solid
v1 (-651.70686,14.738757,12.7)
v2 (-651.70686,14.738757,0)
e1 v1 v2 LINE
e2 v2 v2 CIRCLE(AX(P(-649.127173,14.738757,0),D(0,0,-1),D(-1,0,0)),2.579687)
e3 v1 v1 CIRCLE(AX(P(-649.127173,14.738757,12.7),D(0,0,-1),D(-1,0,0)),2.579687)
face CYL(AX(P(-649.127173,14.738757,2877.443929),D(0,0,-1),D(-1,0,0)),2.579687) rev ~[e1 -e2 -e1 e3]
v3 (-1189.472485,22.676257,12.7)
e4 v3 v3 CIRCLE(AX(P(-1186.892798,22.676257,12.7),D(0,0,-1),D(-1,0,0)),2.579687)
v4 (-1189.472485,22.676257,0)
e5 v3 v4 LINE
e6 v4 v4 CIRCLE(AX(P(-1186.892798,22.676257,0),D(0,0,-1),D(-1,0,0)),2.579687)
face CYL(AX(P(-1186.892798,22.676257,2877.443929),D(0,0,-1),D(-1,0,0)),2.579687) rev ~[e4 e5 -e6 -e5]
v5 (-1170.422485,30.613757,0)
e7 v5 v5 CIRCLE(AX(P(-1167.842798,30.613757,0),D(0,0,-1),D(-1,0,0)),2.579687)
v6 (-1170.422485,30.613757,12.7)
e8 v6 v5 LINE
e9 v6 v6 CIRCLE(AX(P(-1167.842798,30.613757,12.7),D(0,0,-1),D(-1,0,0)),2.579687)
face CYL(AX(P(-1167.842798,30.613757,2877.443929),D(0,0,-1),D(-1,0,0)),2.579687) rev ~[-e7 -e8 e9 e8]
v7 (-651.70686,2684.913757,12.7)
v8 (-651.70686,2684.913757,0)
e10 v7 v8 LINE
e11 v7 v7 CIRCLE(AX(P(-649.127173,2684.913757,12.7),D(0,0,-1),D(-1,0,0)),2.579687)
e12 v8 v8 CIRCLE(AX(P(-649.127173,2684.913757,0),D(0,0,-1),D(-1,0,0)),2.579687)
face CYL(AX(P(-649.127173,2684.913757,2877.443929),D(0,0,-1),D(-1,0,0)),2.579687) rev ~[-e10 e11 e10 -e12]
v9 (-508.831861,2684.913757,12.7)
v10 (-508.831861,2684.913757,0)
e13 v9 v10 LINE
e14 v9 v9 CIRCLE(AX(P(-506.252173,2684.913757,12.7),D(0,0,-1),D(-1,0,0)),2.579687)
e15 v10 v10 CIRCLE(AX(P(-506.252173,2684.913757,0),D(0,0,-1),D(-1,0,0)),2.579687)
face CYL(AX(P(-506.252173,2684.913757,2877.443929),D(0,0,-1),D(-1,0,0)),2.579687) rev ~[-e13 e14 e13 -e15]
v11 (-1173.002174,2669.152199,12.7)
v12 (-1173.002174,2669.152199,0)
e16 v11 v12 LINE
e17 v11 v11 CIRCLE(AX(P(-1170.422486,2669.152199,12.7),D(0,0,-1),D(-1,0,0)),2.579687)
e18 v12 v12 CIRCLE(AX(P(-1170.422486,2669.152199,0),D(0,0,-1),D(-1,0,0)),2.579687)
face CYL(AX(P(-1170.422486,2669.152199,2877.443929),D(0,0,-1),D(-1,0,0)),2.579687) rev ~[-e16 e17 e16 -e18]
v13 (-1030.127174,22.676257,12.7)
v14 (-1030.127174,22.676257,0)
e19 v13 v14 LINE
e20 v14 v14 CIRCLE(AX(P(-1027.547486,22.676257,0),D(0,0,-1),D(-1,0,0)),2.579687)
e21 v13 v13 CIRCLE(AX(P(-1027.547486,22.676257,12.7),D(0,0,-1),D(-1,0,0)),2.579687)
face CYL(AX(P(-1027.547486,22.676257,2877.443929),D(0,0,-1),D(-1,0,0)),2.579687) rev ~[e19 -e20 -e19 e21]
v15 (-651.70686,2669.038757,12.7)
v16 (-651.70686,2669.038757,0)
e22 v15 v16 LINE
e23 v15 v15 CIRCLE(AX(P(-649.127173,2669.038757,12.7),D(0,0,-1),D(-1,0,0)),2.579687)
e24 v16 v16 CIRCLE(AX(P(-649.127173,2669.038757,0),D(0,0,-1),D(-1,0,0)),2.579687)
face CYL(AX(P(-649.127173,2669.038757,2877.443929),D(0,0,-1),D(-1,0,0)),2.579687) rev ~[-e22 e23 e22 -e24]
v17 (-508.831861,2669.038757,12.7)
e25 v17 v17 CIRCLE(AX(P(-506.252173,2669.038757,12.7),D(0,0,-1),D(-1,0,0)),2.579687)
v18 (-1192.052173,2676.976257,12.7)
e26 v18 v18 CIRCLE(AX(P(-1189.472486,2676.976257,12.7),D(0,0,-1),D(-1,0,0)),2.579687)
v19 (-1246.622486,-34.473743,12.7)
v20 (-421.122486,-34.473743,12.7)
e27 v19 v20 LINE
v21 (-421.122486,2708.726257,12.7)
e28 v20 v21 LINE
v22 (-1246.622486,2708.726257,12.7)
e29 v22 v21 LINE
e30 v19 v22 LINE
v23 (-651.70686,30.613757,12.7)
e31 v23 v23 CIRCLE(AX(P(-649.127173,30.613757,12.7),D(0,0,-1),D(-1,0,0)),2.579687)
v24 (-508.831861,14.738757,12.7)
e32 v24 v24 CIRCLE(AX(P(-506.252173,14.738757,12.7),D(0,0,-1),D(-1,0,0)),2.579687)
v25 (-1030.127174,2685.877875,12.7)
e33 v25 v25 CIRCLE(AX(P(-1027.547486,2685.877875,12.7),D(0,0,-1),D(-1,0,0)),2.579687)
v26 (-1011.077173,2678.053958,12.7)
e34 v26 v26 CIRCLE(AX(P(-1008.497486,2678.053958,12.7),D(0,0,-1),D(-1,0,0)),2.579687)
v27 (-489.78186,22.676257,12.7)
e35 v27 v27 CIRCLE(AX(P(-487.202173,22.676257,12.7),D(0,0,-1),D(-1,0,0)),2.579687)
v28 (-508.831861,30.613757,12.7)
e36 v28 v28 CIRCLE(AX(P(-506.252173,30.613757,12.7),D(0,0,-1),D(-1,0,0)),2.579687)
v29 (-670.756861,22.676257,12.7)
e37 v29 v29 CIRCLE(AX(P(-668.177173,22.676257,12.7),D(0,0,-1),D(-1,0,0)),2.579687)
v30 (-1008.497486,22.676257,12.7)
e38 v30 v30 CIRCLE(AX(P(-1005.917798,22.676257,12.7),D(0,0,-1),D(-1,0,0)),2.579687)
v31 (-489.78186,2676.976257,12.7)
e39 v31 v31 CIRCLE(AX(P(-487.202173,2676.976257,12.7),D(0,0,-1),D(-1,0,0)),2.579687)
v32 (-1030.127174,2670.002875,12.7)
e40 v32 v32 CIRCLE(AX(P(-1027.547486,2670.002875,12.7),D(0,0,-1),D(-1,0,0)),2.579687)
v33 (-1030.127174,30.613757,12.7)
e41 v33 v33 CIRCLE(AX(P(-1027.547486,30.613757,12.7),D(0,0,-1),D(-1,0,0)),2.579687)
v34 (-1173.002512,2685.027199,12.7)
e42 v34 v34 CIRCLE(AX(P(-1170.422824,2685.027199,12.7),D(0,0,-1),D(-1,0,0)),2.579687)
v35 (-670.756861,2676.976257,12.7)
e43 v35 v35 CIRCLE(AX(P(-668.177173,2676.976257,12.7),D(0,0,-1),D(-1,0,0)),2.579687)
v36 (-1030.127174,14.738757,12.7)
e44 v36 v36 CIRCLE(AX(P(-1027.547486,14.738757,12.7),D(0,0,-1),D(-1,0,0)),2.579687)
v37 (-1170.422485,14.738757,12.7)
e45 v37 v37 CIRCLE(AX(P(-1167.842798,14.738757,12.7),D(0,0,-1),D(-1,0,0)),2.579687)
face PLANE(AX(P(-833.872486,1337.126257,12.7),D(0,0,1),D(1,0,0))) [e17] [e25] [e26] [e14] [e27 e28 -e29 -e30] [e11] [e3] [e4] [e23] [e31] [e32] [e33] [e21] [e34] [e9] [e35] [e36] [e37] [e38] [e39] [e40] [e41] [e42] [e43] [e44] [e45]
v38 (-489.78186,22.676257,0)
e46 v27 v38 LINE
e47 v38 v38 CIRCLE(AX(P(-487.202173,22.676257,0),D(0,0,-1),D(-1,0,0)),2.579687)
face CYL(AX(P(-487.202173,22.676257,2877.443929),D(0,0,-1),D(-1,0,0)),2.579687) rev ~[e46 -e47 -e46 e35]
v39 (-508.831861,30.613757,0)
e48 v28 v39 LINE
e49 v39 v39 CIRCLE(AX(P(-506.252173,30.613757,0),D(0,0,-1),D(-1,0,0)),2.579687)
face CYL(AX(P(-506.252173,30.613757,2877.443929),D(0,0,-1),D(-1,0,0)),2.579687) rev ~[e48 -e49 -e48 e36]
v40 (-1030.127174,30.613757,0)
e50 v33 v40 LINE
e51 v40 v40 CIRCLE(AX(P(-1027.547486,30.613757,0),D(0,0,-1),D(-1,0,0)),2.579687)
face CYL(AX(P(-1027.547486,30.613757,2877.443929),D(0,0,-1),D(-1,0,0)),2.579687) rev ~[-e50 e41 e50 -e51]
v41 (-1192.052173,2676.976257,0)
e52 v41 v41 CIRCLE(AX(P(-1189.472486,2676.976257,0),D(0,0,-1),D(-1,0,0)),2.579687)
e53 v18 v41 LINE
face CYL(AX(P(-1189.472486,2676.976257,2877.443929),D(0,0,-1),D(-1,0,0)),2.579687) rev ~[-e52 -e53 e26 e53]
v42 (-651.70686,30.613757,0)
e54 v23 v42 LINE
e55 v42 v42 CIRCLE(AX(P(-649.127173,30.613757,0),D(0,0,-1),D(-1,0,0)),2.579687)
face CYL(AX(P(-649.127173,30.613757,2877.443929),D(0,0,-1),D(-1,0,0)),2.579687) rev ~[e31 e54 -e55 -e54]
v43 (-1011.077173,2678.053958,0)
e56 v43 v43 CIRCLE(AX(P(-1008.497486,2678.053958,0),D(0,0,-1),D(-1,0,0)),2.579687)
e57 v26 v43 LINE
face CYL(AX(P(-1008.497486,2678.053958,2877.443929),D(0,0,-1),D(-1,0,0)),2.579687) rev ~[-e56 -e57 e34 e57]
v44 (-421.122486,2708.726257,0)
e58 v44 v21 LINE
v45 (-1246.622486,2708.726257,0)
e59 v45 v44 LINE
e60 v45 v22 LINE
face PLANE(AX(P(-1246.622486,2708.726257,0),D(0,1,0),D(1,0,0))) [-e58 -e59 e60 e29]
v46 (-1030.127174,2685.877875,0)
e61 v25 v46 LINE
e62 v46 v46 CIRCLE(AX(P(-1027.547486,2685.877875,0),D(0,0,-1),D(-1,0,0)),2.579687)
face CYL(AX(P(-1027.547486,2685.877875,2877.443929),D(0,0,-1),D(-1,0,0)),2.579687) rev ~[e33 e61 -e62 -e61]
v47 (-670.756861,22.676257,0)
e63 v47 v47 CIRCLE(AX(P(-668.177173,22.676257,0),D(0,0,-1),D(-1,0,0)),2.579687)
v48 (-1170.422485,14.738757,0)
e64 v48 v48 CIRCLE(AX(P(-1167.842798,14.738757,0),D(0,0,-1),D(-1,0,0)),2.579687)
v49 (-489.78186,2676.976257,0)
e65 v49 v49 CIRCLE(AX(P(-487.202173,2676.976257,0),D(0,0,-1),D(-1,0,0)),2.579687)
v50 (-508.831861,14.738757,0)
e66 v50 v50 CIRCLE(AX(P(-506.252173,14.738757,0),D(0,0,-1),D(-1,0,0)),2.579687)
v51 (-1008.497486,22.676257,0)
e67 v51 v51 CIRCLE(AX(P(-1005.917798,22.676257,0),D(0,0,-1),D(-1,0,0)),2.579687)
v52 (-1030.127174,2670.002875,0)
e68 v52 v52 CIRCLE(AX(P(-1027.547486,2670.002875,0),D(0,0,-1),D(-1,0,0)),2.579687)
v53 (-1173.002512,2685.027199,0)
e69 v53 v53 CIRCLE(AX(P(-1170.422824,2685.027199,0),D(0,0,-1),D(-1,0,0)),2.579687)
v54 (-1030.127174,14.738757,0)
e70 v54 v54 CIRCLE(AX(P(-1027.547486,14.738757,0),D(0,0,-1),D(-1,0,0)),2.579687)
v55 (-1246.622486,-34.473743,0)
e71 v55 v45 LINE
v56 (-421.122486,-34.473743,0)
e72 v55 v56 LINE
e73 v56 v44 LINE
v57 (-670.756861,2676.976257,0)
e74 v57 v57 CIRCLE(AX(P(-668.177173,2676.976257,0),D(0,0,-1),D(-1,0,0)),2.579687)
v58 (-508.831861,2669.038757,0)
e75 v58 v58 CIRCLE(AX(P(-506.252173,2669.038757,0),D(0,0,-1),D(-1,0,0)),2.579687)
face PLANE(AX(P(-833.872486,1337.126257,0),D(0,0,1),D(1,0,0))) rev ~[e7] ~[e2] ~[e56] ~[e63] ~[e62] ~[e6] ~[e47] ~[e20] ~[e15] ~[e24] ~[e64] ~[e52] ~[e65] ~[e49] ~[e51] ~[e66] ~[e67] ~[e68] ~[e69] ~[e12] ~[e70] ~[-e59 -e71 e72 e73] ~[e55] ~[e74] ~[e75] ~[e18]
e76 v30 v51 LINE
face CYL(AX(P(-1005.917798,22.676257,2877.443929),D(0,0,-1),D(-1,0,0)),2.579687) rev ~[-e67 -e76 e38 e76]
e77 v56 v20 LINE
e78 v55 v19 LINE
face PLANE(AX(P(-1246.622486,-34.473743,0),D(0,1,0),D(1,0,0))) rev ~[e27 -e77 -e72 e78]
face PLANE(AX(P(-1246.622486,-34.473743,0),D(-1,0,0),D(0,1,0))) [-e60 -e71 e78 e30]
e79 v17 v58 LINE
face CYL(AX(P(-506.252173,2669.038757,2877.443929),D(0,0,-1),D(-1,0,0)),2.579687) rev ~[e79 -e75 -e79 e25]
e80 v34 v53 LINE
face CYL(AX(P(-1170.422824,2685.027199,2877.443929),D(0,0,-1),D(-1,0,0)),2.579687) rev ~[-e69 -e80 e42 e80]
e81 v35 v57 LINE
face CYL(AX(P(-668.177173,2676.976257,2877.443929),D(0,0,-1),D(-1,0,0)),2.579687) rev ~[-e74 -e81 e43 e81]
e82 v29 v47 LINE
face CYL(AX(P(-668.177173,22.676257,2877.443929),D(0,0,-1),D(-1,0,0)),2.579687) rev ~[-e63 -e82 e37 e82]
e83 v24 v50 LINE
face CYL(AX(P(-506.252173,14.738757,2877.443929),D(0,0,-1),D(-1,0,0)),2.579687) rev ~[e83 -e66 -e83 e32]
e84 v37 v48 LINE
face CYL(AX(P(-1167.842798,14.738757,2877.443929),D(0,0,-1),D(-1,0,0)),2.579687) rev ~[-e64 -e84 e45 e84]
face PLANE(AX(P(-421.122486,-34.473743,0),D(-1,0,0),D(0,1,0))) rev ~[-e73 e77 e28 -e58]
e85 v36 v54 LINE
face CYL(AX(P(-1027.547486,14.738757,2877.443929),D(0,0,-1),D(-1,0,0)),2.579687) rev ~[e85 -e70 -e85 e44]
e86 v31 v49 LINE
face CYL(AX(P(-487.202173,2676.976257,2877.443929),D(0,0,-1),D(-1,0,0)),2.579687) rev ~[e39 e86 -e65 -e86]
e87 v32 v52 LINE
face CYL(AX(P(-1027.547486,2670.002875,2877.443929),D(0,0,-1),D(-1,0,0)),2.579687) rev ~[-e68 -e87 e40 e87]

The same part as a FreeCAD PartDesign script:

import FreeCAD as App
import Part
import Sketcher

V = App.Vector
Q = App.Units.Quantity

doc = App.newDocument("Part")
body = doc.addObject("PartDesign::Body", "Body")

# Sketch on XY plane
sketch1 = doc.addObject("Sketcher::SketchObject", "Sketch")
body.addObject(sketch1)
sketch1.AttachmentSupport = (doc.XY_Plane, [""])
sketch1.MapMode = "FlatFace"
sketch1.addGeometry([
    Part.LineSegment(V(-1247, 2709, 0), V(-1247, -34, 0)),
    Part.LineSegment(V(-1247, -34, 0), V(-421, -34, 0)),
    Part.LineSegment(V(-421, -34, 0), V(-421, 2709, 0)),
    Part.LineSegment(V(-421, 2709, 0), V(-1247, 2709, 0)),
], False)
sketch1.addConstraint([
    Sketcher.Constraint("Coincident", 0, 2, 1, 1),
    Sketcher.Constraint("Coincident", 1, 2, 2, 1),
    Sketcher.Constraint("Coincident", 2, 2, 3, 1),
    Sketcher.Constraint("Coincident", 3, 2, 0, 1),
    Sketcher.Constraint("Vertical", 0),
    Sketcher.Constraint("Horizontal", 1),
    Sketcher.Constraint("Vertical", 2),
    Sketcher.Constraint("Horizontal", 3),
    Sketcher.Constraint("DistanceY", 0, 2, 0, 1, Q("108 in")),
    Sketcher.Constraint("DistanceX", 1, 1, 1, 2, Q("32.5 in")),
    Sketcher.Constraint("DistanceX", 0, 2, -1, 1, Q("1246.622486 mm")),
    Sketcher.Constraint("DistanceY", 0, 2, -1, 1, Q("34.473743 mm")),
])
pad1 = doc.addObject("PartDesign::Pad", "Pad")
body.addObject(pad1)
pad1.Profile = sketch1
pad1.Length = Q("0.5 in")

# Sketch on XY plane
sketch2 = doc.addObject("Sketcher::SketchObject", "Sketch001")
body.addObject(sketch2)
sketch2.AttachmentSupport = (doc.XY_Plane, [""])
sketch2.MapMode = "FlatFace"
sketch2.AttachmentOffset = App.Placement(V(0, 0, 0.5 * 25.4), App.Rotation())
sketch2.addGeometry([
    Part.Circle(V(-487.2, 2677, 0), V(0, 0, 1), 2.6),  # 0
    Part.Circle(V(-668.2, 2677, 0), V(0, 0, 1), 2.6),  # 1
    Part.Circle(V(-649.1, 2684.9, 0), V(0, 0, 1), 2.6),  # 2
    Part.Circle(V(-1189.5, 2677, 0), V(0, 0, 1), 2.6),  # 3
    Part.Circle(V(-1027.5, 2670, 0), V(0, 0, 1), 2.6),  # 4
    Part.Circle(V(-1027.5, 2685.9, 0), V(0, 0, 1), 2.6),  # 5
    Part.Circle(V(-506.3, 2684.9, 0), V(0, 0, 1), 2.6),  # 6
    Part.Circle(V(-1008.5, 2678.1, 0), V(0, 0, 1), 2.6),  # 7
    Part.Circle(V(-1170.4, 2685, 0), V(0, 0, 1), 2.6),  # 8
    Part.Circle(V(-649.1, 2669, 0), V(0, 0, 1), 2.6),  # 9
    Part.Circle(V(-1170.4, 2669.2, 0), V(0, 0, 1), 2.6),  # 10
    Part.Circle(V(-506.3, 2669, 0), V(0, 0, 1), 2.6),  # 11
    Part.Circle(V(-1005.9, 22.7, 0), V(0, 0, 1), 2.6),  # 12
    Part.Circle(V(-1027.5, 14.7, 0), V(0, 0, 1), 2.6),  # 13
    Part.Circle(V(-1167.8, 14.7, 0), V(0, 0, 1), 2.6),  # 14
    Part.Circle(V(-668.2, 22.7, 0), V(0, 0, 1), 2.6),  # 15
    Part.Circle(V(-649.1, 14.7, 0), V(0, 0, 1), 2.6),  # 16
    Part.Circle(V(-1027.5, 30.6, 0), V(0, 0, 1), 2.6),  # 17
    Part.Circle(V(-649.1, 30.6, 0), V(0, 0, 1), 2.6),  # 18
    Part.Circle(V(-506.3, 14.7, 0), V(0, 0, 1), 2.6),  # 19
    Part.Circle(V(-1167.8, 30.6, 0), V(0, 0, 1), 2.6),  # 20
    Part.Circle(V(-1186.9, 22.7, 0), V(0, 0, 1), 2.6),  # 21
    Part.Circle(V(-506.3, 30.6, 0), V(0, 0, 1), 2.6),  # 22
    Part.Circle(V(-487.2, 22.7, 0), V(0, 0, 1), 2.6),  # 23
    Part.Circle(V(-1027.5, 22.7, 0), V(0, 0, 1), 2.6),  # 24
], False)
sketch2.addConstraint([
    Sketcher.Constraint("Equal", 0, 1),
    Sketcher.Constraint("Equal", 1, 2),
    Sketcher.Constraint("Equal", 2, 3),
    Sketcher.Constraint("Equal", 3, 4),
    Sketcher.Constraint("Equal", 4, 5),
    Sketcher.Constraint("Equal", 5, 6),
    Sketcher.Constraint("Equal", 6, 7),
    Sketcher.Constraint("Equal", 7, 8),
    Sketcher.Constraint("Equal", 8, 9),
    Sketcher.Constraint("Equal", 9, 10),
    Sketcher.Constraint("Equal", 10, 11),
    Sketcher.Constraint("Equal", 11, 12),
    Sketcher.Constraint("Equal", 12, 13),
    Sketcher.Constraint("Equal", 13, 14),
    Sketcher.Constraint("Equal", 14, 15),
    Sketcher.Constraint("Equal", 15, 16),
    Sketcher.Constraint("Equal", 16, 17),
    Sketcher.Constraint("Equal", 17, 18),
    Sketcher.Constraint("Equal", 18, 19),
    Sketcher.Constraint("Equal", 19, 20),
    Sketcher.Constraint("Equal", 20, 21),
    Sketcher.Constraint("Equal", 21, 22),
    Sketcher.Constraint("Equal", 22, 23),
    Sketcher.Constraint("Equal", 23, 24),
    Sketcher.Constraint("Horizontal", 0, 3, 1, 3),
    Sketcher.Constraint("Horizontal", 1, 3, 3, 3),
    Sketcher.Constraint("Horizontal", 2, 3, 6, 3),
    Sketcher.Constraint("Horizontal", 9, 3, 11, 3),
    Sketcher.Constraint("Horizontal", 13, 3, 14, 3),
    Sketcher.Constraint("Horizontal", 12, 3, 15, 3),
    Sketcher.Constraint("Horizontal", 14, 3, 16, 3),
    Sketcher.Constraint("Horizontal", 17, 3, 18, 3),
    Sketcher.Constraint("Horizontal", 16, 3, 19, 3),
    Sketcher.Constraint("Horizontal", 18, 3, 20, 3),
    Sketcher.Constraint("Horizontal", 15, 3, 21, 3),
    Sketcher.Constraint("Horizontal", 20, 3, 22, 3),
    Sketcher.Constraint("Horizontal", 21, 3, 23, 3),
    Sketcher.Constraint("Horizontal", 23, 3, 24, 3),
    Sketcher.Constraint("Vertical", 4, 3, 5, 3),
    Sketcher.Constraint("Vertical", 2, 3, 9, 3),
    Sketcher.Constraint("Vertical", 6, 3, 11, 3),
    Sketcher.Constraint("Vertical", 5, 3, 13, 3),
    Sketcher.Constraint("Vertical", 1, 3, 15, 3),
    Sketcher.Constraint("Vertical", 9, 3, 16, 3),
    Sketcher.Constraint("Vertical", 13, 3, 17, 3),
    Sketcher.Constraint("Vertical", 16, 3, 18, 3),
    Sketcher.Constraint("Vertical", 11, 3, 19, 3),
    Sketcher.Constraint("Vertical", 14, 3, 20, 3),
    Sketcher.Constraint("Vertical", 19, 3, 22, 3),
    Sketcher.Constraint("Vertical", 0, 3, 23, 3),
    Sketcher.Constraint("Vertical", 17, 3, 24, 3),
    Sketcher.Constraint("Diameter", 0, Q("0.203125 in")),
    Sketcher.Constraint("DistanceY", 12, 3, 3, 3, Q("104.5 in")),
    Sketcher.Constraint("DistanceY", 16, 3, 9, 3, Q("104.5 in")),
    Sketcher.Constraint("DistanceX", 1, 3, 2, 3, Q("0.75 in")),
    Sketcher.Constraint("DistanceX", 6, 3, 0, 3, Q("0.75 in")),
    Sketcher.Constraint("DistanceX", 5, 3, 7, 3, Q("0.75 in")),
    Sketcher.Constraint("DistanceX", 3, 3, 10, 3, Q("0.75 in")),
    Sketcher.Constraint("DistanceX", 21, 3, 14, 3, Q("0.75 in")),
    Sketcher.Constraint("DistanceX", 1, 3, 0, 3, Q("7.125 in")),
    Sketcher.Constraint("DistanceY", 1, 3, 2, 3, Q("0.3125 in")),
    Sketcher.Constraint("DistanceX", 3, 3, 4, 3, Q("6.375 in")),
    Sketcher.Constraint("DistanceY", 4, 3, 5, 3, Q("0.625 in")),
    Sketcher.Constraint("DistanceY", 9, 3, 2, 3, Q("0.625 in")),
    Sketcher.Constraint("DistanceY", 10, 3, 8, 3, Q("0.625 in")),
    Sketcher.Constraint("DistanceX", 14, 3, 12, 3, Q("6.375 in")),
    Sketcher.Constraint("DistanceX", 12, 3, 15, 3, Q("13.296875 in")),
    Sketcher.Constraint("DistanceY", 13, 3, 17, 3, Q("0.625 in")),
    Sketcher.Constraint("DistanceY", -1, 1, 8, 3, Q("2685.027199 mm")),
    Sketcher.Constraint("DistanceX", 14, 3, -1, 1, Q("1167.842798 mm")),
    Sketcher.Constraint("DistanceY", 3, 3, 7, 3, Q("1.077701 mm")),
    Sketcher.Constraint("DistanceY", 4, 3, 3, 3, Q("6.973382 mm")),
    Sketcher.Constraint("DistanceX", 3, 3, 8, 3, Q("19.049662 mm")),
    Sketcher.Constraint("DistanceY", 7, 3, 8, 3, Q("6.973241 mm")),
    Sketcher.Constraint("DistanceX", 8, 3, 1, 3, Q("502.245651 mm")),
])
doc.recompute()
hole = doc.addObject("PartDesign::Hole", "Hole")
body.addObject(hole)
hole.Profile = sketch2
hole.ThreadType = "None"
hole.Diameter = Q("0.203125 in")
hole.DepthType = "ThroughAll"

doc.recompute()
